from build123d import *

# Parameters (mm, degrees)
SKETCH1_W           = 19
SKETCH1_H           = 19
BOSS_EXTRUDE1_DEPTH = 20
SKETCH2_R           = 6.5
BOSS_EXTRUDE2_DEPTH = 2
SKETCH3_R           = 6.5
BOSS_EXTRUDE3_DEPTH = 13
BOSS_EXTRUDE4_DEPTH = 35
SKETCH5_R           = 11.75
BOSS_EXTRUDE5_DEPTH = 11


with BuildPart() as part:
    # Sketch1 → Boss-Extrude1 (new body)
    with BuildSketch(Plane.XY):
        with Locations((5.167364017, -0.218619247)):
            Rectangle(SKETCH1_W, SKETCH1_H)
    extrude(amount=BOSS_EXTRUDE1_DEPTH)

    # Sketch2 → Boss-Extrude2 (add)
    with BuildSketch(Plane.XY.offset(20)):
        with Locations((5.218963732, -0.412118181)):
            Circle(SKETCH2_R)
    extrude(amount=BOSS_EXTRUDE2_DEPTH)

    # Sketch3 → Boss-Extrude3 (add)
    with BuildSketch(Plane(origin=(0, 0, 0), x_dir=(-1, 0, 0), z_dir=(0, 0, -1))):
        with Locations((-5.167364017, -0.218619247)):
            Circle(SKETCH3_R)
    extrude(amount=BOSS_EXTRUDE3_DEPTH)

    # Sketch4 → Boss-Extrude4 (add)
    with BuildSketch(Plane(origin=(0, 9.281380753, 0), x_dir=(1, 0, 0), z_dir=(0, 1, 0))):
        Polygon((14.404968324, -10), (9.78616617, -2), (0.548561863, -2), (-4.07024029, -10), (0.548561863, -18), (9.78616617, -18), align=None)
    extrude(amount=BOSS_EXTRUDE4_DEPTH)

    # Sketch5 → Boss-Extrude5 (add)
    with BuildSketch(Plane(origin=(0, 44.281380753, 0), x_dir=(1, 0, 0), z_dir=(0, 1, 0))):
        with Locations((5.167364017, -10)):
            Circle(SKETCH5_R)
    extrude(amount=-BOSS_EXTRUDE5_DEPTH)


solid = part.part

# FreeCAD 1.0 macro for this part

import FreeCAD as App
import Part
import Sketcher
from FreeCAD import Vector
Q = App.Units.Quantity


def add_polygon(sketch, points):
    """Adds a closed chain of lines whose ends are joined by coincident constraints."""
    first, n = sketch.GeometryCount, len(points)
    for a, b in zip(points, points[1:] + points[:1]):
        sketch.addGeometry(Part.LineSegment(App.Vector(*a, 0), App.Vector(*b, 0)), False)
    for i in range(n):
        sketch.addConstraint(Sketcher.Constraint("Coincident", first + i, 2, first + (i + 1) % n, 1))

doc = App.newDocument("Part")
body = doc.addObject("PartDesign::Body", "Body")

# Sketch on XY plane
sketch1 = body.newObject("Sketcher::SketchObject", "Sketch")
sketch1.AttachmentSupport = (doc.getObject("XY_Plane"), [""])
sketch1.MapMode = "FlatFace"
add_polygon(sketch1, [(-4.332636, 9.281381), (-4.332636, -9.718619), (14.667364, -9.718619), (14.667364, 9.281381)])  # lines 0-3
sketch1.addConstraint(Sketcher.Constraint("Vertical", 0))
sketch1.addConstraint(Sketcher.Constraint("Horizontal", 1))
sketch1.addConstraint(Sketcher.Constraint("Vertical", 2))
sketch1.addConstraint(Sketcher.Constraint("Horizontal", 3))
sketch1.addConstraint(Sketcher.Constraint("Equal", 3, 0))
sketch1.addConstraint(Sketcher.Constraint("DistanceX", 1, 1, 1, 2, Q("19 mm")))
sketch1.addConstraint(Sketcher.Constraint("DistanceY", 0, 2, -1, 1, Q("9.718619 mm")))
sketch1.addConstraint(Sketcher.Constraint("DistanceX", 0, 2, -1, 1, Q("4.332636 mm")))
pad1 = body.newObject("PartDesign::Pad", "Pad")
pad1.Profile = sketch1
pad1.Length = 20

# Sketch on XY plane
sketch2 = body.newObject("Sketcher::SketchObject", "Sketch001")
sketch2.AttachmentSupport = (doc.getObject("XY_Plane"), [""])
sketch2.MapMode = "FlatFace"
sketch2.AttachmentOffset = App.Placement(Vector(0, 0, 20), App.Rotation())
sketch2.addGeometry(Part.Circle(Vector(5.218964, -0.412118, 0), Vector(0, 0, 1), 6.5), False)
sketch2.addConstraint(Sketcher.Constraint("Diameter", 0, Q("13 mm")))
sketch2.addConstraint(Sketcher.Constraint("DistanceY", 0, 3, -1, 1, Q("0.412118 mm")))
sketch2.addConstraint(Sketcher.Constraint("DistanceX", -1, 1, 0, 3, Q("5.218964 mm")))
pad2 = body.newObject("PartDesign::Pad", "Pad001")
pad2.Profile = sketch2
pad2.Length = 2

# Sketch on XY plane
sketch3 = body.newObject("Sketcher::SketchObject", "Sketch002")
sketch3.AttachmentSupport = (doc.getObject("XY_Plane"), [""])
sketch3.MapMode = "FlatFace"
sketch3.addGeometry(Part.Circle(Vector(5.167364, -0.218619, 0), Vector(0, 0, 1), 6.5), False)
sketch3.addConstraint(Sketcher.Constraint("Diameter", 0, Q("13 mm")))
sketch3.addConstraint(Sketcher.Constraint("DistanceY", 0, 3, -1, 1, Q("0.218619 mm")))
sketch3.addConstraint(Sketcher.Constraint("DistanceX", -1, 1, 0, 3, Q("5.167364 mm")))
pad3 = body.newObject("PartDesign::Pad", "Pad002")
pad3.Profile = sketch3
pad3.Length = 13
pad3.Reversed = True

# Sketch on XZ plane
sketch4 = body.newObject("Sketcher::SketchObject", "Sketch003")
sketch4.AttachmentSupport = (doc.getObject("XZ_Plane"), [""])
sketch4.MapMode = "FlatFace"
sketch4.AttachmentOffset = App.Placement(Vector(0, 0, -9.281381), App.Rotation())
add_polygon(sketch4, [(14.404968, 10), (9.786166, 2), (0.548562, 2), (-4.07024, 10), (0.548562, 18), (9.786166, 18)])  # lines 0-5
sketch4.addConstraint(Sketcher.Constraint("Horizontal", 1))
sketch4.addConstraint(Sketcher.Constraint("Horizontal", 4))
sketch4.addConstraint(Sketcher.Constraint("Parallel", 0, 3))
sketch4.addConstraint(Sketcher.Constraint("Parallel", 2, 5))
sketch4.addConstraint(Sketcher.Constraint("Horizontal", 2, 2, 5, 2))
sketch4.addConstraint(Sketcher.Constraint("Vertical", 1, 2, 3, 2))
sketch4.addConstraint(Sketcher.Constraint("Vertical", 0, 2, 4, 2))
sketch4.addConstraint(Sketcher.Constraint("Angle", 0, Q("-120 deg")))
sketch4.addConstraint(Sketcher.Constraint("DistanceY", -1, 1, 0, 2, Q("2 mm")))
sketch4.addConstraint(Sketcher.Constraint("DistanceY", -1, 1, 2, 2, Q("10 mm")))
sketch4.addConstraint(Sketcher.Constraint("DistanceX", 1, 2, 1, 1, Q("9.237604 mm")))
sketch4.addConstraint(Sketcher.Constraint("DistanceX", -1, 1, 1, 2, Q("0.548562 mm")))
pad4 = body.newObject("PartDesign::Pad", "Pad003")
pad4.Profile = sketch4
pad4.Length = 35
pad4.Reversed = True

# Sketch on XZ plane
sketch5 = body.newObject("Sketcher::SketchObject", "Sketch004")
sketch5.AttachmentSupport = (doc.getObject("XZ_Plane"), [""])
sketch5.MapMode = "FlatFace"
sketch5.AttachmentOffset = App.Placement(Vector(0, 0, -44.281381), App.Rotation())
sketch5.addGeometry(Part.Circle(Vector(5.167364, 10, 0), Vector(0, 0, 1), 11.75), False)
sketch5.addConstraint(Sketcher.Constraint("Diameter", 0, Q("23.5 mm")))
sketch5.addConstraint(Sketcher.Constraint("DistanceY", -1, 1, 0, 3, Q("10 mm")))
sketch5.addConstraint(Sketcher.Constraint("DistanceX", -1, 1, 0, 3, Q("5.167364 mm")))
pad5 = body.newObject("PartDesign::Pad", "Pad004")
pad5.Profile = sketch5
pad5.Length = 11

doc.recompute()
